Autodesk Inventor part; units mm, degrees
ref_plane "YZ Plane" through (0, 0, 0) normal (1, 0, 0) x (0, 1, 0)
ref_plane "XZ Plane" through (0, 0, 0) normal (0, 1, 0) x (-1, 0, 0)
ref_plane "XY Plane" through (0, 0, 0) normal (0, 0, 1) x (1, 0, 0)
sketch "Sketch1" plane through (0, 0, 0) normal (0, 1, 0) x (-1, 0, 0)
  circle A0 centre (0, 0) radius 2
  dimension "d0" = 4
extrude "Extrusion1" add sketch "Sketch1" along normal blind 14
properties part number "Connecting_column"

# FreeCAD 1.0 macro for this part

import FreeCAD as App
import Part
import Sketcher
from FreeCAD import Vector

doc = App.newDocument("Part")
params = doc.addObject("Spreadsheet::Sheet", "Params")
for row, (alias, value) in enumerate([
    ("sketch1_diameter", "4 mm"),
    ("pad1_length", "14 mm"),
], start=1):
    params.set(f"A{row}", alias)
    params.set(f"B{row}", "=" + value)
    params.setAlias(f"B{row}", alias)

body = doc.addObject("PartDesign::Body", "Body")

# Sketch on XZ plane
sketch1 = body.newObject("Sketcher::SketchObject", "Sketch")
sketch1.AttachmentSupport = (doc.getObject("XZ_Plane"), [""])
sketch1.MapMode = "FlatFace"
sketch1.addGeometry(Part.Circle(Vector(0, 0, 0), Vector(0, 0, 1), 2), False)
sketch1.addConstraint([
    Sketcher.Constraint("Coincident", 0, 3, -1, 1),
    Sketcher.Constraint("Diameter", 0, 4.0),
])
sketch1.setExpression("Constraints[1]", "Params.sketch1_diameter")
pad1 = body.newObject("PartDesign::Pad", "Pad")
pad1.Profile = sketch1
pad1.setExpression("Length", "Params.pad1_length")
pad1.Reversed = True

doc.recompute()
